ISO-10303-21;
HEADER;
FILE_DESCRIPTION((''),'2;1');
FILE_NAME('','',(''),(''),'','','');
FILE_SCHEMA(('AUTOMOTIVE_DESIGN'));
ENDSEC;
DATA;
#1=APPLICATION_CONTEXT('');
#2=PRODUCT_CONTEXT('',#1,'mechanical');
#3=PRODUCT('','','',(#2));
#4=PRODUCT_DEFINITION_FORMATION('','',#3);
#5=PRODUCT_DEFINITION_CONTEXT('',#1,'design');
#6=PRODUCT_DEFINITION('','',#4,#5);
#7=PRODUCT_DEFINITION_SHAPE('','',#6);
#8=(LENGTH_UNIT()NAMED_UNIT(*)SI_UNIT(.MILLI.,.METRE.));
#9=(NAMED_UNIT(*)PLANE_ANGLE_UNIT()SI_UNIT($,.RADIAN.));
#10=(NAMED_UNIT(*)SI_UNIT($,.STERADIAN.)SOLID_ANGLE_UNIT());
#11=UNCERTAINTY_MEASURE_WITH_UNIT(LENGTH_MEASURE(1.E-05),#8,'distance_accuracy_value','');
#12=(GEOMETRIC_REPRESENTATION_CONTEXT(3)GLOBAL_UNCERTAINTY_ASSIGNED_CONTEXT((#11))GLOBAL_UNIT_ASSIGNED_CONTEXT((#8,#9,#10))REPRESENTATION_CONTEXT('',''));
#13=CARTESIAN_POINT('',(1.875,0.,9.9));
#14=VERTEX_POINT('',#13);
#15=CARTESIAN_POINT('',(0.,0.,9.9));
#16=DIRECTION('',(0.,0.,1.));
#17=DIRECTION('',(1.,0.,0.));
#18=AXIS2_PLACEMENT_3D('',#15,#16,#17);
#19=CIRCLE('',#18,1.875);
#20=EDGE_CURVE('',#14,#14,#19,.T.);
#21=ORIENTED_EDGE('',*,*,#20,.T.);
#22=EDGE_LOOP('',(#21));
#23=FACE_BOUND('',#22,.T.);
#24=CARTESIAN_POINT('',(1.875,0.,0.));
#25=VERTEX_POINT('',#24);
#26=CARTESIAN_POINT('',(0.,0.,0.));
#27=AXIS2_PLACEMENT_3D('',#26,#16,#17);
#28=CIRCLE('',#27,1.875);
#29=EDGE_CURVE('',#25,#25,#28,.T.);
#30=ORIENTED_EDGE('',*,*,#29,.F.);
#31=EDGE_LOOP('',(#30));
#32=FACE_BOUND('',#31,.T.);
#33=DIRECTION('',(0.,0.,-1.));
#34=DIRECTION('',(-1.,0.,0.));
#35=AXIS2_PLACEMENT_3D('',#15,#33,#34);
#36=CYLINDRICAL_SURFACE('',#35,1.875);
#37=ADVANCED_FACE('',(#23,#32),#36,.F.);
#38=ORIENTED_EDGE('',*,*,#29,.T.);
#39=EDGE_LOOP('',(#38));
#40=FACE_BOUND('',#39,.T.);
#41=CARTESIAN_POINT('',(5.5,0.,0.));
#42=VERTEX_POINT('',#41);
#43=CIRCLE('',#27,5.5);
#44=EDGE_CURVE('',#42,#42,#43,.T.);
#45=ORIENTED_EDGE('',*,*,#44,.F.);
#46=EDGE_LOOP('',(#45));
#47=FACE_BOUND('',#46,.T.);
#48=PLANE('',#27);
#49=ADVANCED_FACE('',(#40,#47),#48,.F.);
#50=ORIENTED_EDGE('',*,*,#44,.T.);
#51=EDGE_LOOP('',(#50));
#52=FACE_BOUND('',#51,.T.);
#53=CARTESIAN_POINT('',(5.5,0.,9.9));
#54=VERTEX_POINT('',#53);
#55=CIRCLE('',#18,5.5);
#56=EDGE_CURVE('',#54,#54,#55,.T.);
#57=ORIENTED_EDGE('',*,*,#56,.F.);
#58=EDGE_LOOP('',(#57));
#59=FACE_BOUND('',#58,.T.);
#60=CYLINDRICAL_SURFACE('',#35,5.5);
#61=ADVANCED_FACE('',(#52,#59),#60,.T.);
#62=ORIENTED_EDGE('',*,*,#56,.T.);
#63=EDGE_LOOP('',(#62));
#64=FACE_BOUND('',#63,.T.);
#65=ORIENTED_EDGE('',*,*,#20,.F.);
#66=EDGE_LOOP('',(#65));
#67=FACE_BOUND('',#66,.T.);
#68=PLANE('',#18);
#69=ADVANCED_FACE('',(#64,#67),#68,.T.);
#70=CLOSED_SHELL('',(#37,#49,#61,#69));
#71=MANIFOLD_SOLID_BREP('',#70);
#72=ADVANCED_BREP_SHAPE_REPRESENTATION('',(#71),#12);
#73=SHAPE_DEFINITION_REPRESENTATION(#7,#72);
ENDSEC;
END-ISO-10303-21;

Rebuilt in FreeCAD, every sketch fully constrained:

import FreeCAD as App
import Part
import Sketcher

doc = App.newDocument("Part")
body = doc.addObject("PartDesign::Body", "Body")

# Sketch on XY plane
sketch1 = body.newObject("Sketcher::SketchObject", "Sketch")
sketch1.AttachmentSupport = (doc.getObject("XY_Plane"), [""])
sketch1.MapMode = "FlatFace"
sketch1.addGeometry([
    Part.Circle(App.Vector(0, 0, 0), App.Vector(0, 0, 1), 5.5),
    Part.Circle(App.Vector(0, 0, 0), App.Vector(0, 0, 1), 1.9),
], False)
sketch1.addConstraint([
    Sketcher.Constraint("Coincident", 0, 3, -1, 1),
    Sketcher.Constraint("Coincident", 1, 3, -1, 1),
    Sketcher.Constraint("Diameter", 0, 11.0),
    Sketcher.Constraint("Diameter", 1, 3.75),
])
pad1 = body.newObject("PartDesign::Pad", "Pad")
pad1.Profile = sketch1
pad1.Length = 9.9

doc.recompute()
